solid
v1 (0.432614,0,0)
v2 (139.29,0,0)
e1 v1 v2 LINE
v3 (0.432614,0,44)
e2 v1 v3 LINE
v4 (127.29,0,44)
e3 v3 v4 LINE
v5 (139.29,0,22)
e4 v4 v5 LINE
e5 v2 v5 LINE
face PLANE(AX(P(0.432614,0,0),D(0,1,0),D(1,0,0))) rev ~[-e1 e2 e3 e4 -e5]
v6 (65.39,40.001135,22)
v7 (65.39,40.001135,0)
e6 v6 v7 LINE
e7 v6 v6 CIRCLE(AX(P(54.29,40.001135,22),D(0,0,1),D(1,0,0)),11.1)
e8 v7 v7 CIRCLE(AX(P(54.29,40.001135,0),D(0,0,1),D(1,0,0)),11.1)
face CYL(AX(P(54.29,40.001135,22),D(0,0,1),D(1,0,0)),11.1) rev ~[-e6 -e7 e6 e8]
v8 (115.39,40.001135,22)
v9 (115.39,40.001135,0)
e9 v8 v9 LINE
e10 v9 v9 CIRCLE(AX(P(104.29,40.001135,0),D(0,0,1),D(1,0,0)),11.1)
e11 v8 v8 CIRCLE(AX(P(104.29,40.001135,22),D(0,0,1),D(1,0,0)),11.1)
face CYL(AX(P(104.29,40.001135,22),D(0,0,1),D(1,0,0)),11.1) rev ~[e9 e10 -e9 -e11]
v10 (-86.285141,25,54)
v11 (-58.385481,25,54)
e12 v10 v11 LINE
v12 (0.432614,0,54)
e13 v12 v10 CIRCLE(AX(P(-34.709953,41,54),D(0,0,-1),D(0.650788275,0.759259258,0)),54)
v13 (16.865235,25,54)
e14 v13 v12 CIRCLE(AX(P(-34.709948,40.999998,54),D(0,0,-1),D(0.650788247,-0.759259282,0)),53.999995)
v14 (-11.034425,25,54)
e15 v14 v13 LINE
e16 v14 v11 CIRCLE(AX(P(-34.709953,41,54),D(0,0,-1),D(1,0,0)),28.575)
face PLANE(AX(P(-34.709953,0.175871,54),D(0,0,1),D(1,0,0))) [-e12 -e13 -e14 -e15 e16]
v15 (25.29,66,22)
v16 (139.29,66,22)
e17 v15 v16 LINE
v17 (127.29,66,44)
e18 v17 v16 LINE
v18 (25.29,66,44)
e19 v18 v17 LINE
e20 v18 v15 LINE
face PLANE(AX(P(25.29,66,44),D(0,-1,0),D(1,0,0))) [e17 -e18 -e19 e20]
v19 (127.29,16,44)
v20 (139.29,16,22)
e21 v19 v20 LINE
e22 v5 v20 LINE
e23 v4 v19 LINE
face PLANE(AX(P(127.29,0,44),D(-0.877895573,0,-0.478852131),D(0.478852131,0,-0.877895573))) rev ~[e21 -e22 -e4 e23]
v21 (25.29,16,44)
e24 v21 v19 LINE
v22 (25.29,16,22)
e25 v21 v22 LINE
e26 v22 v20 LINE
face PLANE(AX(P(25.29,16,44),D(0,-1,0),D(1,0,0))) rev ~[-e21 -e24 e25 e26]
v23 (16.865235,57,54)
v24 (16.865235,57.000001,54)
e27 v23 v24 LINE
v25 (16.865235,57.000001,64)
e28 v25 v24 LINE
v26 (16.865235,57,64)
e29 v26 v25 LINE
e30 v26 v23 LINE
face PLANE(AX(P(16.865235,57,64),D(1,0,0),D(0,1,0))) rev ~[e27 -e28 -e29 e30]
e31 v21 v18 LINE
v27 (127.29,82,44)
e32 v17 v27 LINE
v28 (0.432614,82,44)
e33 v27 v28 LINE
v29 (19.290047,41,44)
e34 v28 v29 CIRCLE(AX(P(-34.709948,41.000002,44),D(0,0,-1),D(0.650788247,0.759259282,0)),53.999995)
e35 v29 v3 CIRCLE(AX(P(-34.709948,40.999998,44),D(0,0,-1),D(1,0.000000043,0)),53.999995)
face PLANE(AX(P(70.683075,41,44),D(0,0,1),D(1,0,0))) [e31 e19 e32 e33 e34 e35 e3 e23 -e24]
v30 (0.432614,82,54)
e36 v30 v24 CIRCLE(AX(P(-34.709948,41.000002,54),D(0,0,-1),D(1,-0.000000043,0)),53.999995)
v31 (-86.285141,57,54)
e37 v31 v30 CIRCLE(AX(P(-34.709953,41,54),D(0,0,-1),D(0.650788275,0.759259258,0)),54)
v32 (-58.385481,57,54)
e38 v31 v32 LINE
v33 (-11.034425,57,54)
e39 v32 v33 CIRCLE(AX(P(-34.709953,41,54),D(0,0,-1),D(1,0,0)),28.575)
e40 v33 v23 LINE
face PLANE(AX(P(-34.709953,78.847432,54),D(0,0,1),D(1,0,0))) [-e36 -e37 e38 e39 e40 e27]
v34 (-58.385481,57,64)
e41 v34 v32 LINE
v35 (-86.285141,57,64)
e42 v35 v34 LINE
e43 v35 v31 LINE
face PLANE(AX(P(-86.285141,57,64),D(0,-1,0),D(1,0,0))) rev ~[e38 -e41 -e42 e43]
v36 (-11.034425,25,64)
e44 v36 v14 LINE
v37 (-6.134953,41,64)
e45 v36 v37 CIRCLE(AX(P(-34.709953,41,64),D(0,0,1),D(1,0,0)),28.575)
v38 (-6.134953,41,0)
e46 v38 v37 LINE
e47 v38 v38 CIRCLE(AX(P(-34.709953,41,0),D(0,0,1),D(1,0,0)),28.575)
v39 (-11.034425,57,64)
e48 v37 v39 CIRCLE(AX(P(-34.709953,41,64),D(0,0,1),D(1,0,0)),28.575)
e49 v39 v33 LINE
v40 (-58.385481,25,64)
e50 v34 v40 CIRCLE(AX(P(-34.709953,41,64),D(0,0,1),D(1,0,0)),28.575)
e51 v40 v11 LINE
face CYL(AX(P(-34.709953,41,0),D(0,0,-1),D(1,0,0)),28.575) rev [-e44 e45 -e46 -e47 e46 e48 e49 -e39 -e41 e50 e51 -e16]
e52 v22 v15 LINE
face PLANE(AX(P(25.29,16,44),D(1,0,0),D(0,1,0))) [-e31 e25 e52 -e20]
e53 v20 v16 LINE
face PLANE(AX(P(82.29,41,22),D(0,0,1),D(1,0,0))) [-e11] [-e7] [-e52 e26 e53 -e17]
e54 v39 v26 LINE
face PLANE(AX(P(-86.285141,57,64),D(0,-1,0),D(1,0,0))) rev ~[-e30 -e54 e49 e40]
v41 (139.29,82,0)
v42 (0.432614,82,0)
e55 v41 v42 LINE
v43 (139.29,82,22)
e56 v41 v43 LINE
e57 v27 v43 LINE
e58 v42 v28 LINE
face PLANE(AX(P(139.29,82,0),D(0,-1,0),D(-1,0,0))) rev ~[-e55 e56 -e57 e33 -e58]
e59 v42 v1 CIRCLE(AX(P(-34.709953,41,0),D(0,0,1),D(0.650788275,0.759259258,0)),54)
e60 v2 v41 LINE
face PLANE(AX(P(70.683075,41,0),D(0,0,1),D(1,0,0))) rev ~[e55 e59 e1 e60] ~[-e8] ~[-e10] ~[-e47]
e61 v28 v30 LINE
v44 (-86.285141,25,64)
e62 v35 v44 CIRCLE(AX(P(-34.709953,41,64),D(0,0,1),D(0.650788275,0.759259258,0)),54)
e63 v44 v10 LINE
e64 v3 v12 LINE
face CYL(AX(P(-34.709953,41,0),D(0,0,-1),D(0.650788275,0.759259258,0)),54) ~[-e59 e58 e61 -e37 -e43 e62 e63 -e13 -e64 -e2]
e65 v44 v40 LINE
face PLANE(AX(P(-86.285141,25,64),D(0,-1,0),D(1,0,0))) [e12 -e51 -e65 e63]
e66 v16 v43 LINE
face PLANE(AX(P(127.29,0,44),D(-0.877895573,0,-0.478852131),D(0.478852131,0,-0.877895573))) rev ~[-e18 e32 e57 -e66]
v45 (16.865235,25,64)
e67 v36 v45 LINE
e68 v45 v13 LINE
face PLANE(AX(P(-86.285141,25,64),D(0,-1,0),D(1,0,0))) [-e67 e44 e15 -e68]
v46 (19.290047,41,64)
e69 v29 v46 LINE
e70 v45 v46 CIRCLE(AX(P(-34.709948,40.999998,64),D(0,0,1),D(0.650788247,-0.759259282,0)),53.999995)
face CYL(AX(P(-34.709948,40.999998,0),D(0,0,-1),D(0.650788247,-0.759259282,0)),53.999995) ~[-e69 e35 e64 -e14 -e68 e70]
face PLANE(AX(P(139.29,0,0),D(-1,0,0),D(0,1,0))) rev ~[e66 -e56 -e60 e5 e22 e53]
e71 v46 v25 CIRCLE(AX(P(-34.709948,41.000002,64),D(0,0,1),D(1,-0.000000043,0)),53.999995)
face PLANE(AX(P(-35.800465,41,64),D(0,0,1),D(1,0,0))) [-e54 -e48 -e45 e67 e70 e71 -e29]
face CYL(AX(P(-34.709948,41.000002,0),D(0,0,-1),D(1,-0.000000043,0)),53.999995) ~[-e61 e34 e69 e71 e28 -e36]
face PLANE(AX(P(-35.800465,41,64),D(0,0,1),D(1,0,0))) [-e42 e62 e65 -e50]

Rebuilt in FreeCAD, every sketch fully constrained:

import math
import FreeCAD as App
import Part
import Sketcher
Q = App.Units.Quantity

doc = App.newDocument("Part")
body = doc.addObject("PartDesign::Body", "Body")

# Sketch on XY plane
sketch1 = body.newObject("Sketcher::SketchObject", "Sketch")
sketch1.AttachmentSupport = (doc.getObject("XY_Plane"), [""])
sketch1.MapMode = "FlatFace"
sketch1.addGeometry(Part.ArcOfCircle(Part.Circle(App.Vector(-34.709953, 41, 0), App.Vector(0, 0, 1), 54), math.radians(49.398939), math.radians(310.601061)), False)
sketch1.addGeometry(Part.ArcOfCircle(Part.Circle(App.Vector(-34.709948, 40.999998, 0), App.Vector(0, 0, 1), 53.999995), math.radians(-49.398941), math.radians(0.000002)), False)
sketch1.addGeometry(Part.ArcOfCircle(Part.Circle(App.Vector(-34.709948, 41.000002, 0), App.Vector(0, 0, 1), 53.999995), math.radians(-0.000002), math.radians(49.398941)), False)
sketch1.addGeometry(Part.Circle(App.Vector(-34.709953, 41, 0), App.Vector(0, 0, 1), 28.575), False)
sketch1.addConstraint(Sketcher.Constraint("Tangent", 0, 2, 1, 1))
sketch1.addConstraint(Sketcher.Constraint("Tangent", 1, 2, 2, 1))
sketch1.addConstraint(Sketcher.Constraint("Tangent", 2, 2, 0, 1))
sketch1.addConstraint(Sketcher.Constraint("Coincident", 3, 3, 0, 3))
sketch1.addConstraint(Sketcher.Constraint("PointOnObject", 0, 2, -1))
sketch1.addConstraint(Sketcher.Constraint("Horizontal", 3, 3, 1, 2))
sketch1.addConstraint(Sketcher.Constraint("Vertical", 0, 2, 2, 2))
sketch1.addConstraint(Sketcher.Constraint("Radius", 0, Q("54 mm")))
sketch1.addConstraint(Sketcher.Constraint("Diameter", 3, Q("57.15 mm")))
sketch1.addConstraint(Sketcher.Constraint("DistanceY", -1, 1, 0, 3, Q("41 mm")))
sketch1.addConstraint(Sketcher.Constraint("DistanceX", 1, 3, -1, 1, Q("34.709948 mm")))
pad1 = body.newObject("PartDesign::Pad", "Pad")
pad1.Profile = sketch1
pad1.Length = 64

# Sketch on XY plane
sketch2 = body.newObject("Sketcher::SketchObject", "Sketch001")
sketch2.AttachmentSupport = (doc.getObject("XY_Plane"), [""])
sketch2.MapMode = "FlatFace"
sketch2.addGeometry(Part.ArcOfCircle(Part.Circle(App.Vector(-34.709948, 40.999998, 0), App.Vector(0, 0, 1), 53.999995), math.radians(-49.398941), math.radians(0.000002)), False)
sketch2.addGeometry(Part.LineSegment(App.Vector(0.432614, 0, 0), App.Vector(139.29, 0, 0)), False)
sketch2.addGeometry(Part.LineSegment(App.Vector(139.29, 0, 0), App.Vector(139.29, 82, 0)), False)
sketch2.addGeometry(Part.LineSegment(App.Vector(139.29, 82, 0), App.Vector(0.432614, 82, 0)), False)
sketch2.addGeometry(Part.ArcOfCircle(Part.Circle(App.Vector(-34.709948, 41.000002, 0), App.Vector(0, 0, 1), 53.999995), math.radians(-0.000002), math.radians(49.398941)), False)
sketch2.addConstraint(Sketcher.Constraint("Coincident", 0, 1, 1, 1))
sketch2.addConstraint(Sketcher.Constraint("Coincident", 1, 2, 2, 1))
sketch2.addConstraint(Sketcher.Constraint("Coincident", 2, 2, 3, 1))
sketch2.addConstraint(Sketcher.Constraint("Coincident", 3, 2, 4, 2))
sketch2.addConstraint(Sketcher.Constraint("Tangent", 4, 1, 0, 2))
sketch2.addConstraint(Sketcher.Constraint("Horizontal", 1))
sketch2.addConstraint(Sketcher.Constraint("Vertical", 2))
sketch2.addConstraint(Sketcher.Constraint("Horizontal", 3))
sketch2.addConstraint(Sketcher.Constraint("Equal", 0, 4))
sketch2.addConstraint(Sketcher.Constraint("PointOnObject", 0, 1, -1))
sketch2.addConstraint(Sketcher.Constraint("Vertical", 0, 1, 3, 2))
sketch2.addConstraint(Sketcher.Constraint("DistanceY", 2, 1, 2, 2, Q("82 mm")))
sketch2.addConstraint(Sketcher.Constraint("DistanceY", -1, 1, 4, 1, Q("41 mm")))
sketch2.addConstraint(Sketcher.Constraint("DistanceX", -1, 1, 1, 2, Q("139.29 mm")))
sketch2.addConstraint(Sketcher.Constraint("Radius", 0, Q("53.999995 mm")))
sketch2.addConstraint(Sketcher.Constraint("DistanceX", 1, 1, 1, 2, Q("138.857386 mm")))
pad2 = body.newObject("PartDesign::Pad", "Pad001")
pad2.Profile = sketch2
pad2.Length = 44

# Sketch on XY plane
sketch3 = body.newObject("Sketcher::SketchObject", "Sketch002")
sketch3.AttachmentSupport = (doc.getObject("XY_Plane"), [""])
sketch3.MapMode = "FlatFace"
sketch3.AttachmentOffset = App.Placement(App.Vector(0, 0, 64), App.Rotation())
sketch3.addGeometry(Part.LineSegment(App.Vector(-86.285141, 25, 0), App.Vector(-86.285141, -24.648258, 0)), False)
sketch3.addGeometry(Part.LineSegment(App.Vector(-86.285141, -24.648258, 0), App.Vector(16.865235, -24.648258, 0)), False)
sketch3.addGeometry(Part.LineSegment(App.Vector(16.865235, -24.648258, 0), App.Vector(16.865235, 25, 0)), False)
sketch3.addGeometry(Part.LineSegment(App.Vector(16.865235, 25, 0), App.Vector(-86.285141, 25, 0)), False)
sketch3.addGeometry(Part.LineSegment(App.Vector(-86.285141, 100.694864, 0), App.Vector(-86.285141, 57, 0)), False)
sketch3.addGeometry(Part.LineSegment(App.Vector(-86.285141, 57, 0), App.Vector(16.865235, 57, 0)), False)
sketch3.addGeometry(Part.LineSegment(App.Vector(16.865235, 57, 0), App.Vector(16.865235, 100.694864, 0)), False)
sketch3.addGeometry(Part.LineSegment(App.Vector(16.865235, 100.694864, 0), App.Vector(-86.285141, 100.694864, 0)), False)
sketch3.addConstraint(Sketcher.Constraint("Coincident", 0, 2, 1, 1))
sketch3.addConstraint(Sketcher.Constraint("Coincident", 1, 2, 2, 1))
sketch3.addConstraint(Sketcher.Constraint("Coincident", 2, 2, 3, 1))
sketch3.addConstraint(Sketcher.Constraint("Coincident", 3, 2, 0, 1))
sketch3.addConstraint(Sketcher.Constraint("Coincident", 4, 2, 5, 1))
sketch3.addConstraint(Sketcher.Constraint("Coincident", 5, 2, 6, 1))
sketch3.addConstraint(Sketcher.Constraint("Coincident", 6, 2, 7, 1))
sketch3.addConstraint(Sketcher.Constraint("Coincident", 7, 2, 4, 1))
sketch3.addConstraint(Sketcher.Constraint("Vertical", 0))
sketch3.addConstraint(Sketcher.Constraint("Horizontal", 1))
sketch3.addConstraint(Sketcher.Constraint("Vertical", 2))
sketch3.addConstraint(Sketcher.Constraint("Horizontal", 3))
sketch3.addConstraint(Sketcher.Constraint("Vertical", 4))
sketch3.addConstraint(Sketcher.Constraint("Horizontal", 5))
sketch3.addConstraint(Sketcher.Constraint("Vertical", 6))
sketch3.addConstraint(Sketcher.Constraint("Horizontal", 7))
sketch3.addConstraint(Sketcher.Constraint("Vertical", 3, 2, 4, 2))
sketch3.addConstraint(Sketcher.Constraint("Vertical", 2, 2, 5, 2))
sketch3.addConstraint(Sketcher.Constraint("DistanceY", -1, 1, 2, 2, Q("25 mm")))
sketch3.addConstraint(Sketcher.Constraint("DistanceY", -1, 1, 4, 2, Q("57 mm")))
sketch3.addConstraint(Sketcher.Constraint("DistanceX", 1, 1, 1, 2, Q("103.150376 mm")))
sketch3.addConstraint(Sketcher.Constraint("DistanceY", 0, 2, 0, 1, Q("49.648258 mm")))
sketch3.addConstraint(Sketcher.Constraint("DistanceY", 4, 2, 4, 1, Q("43.694865 mm")))
sketch3.addConstraint(Sketcher.Constraint("DistanceX", 0, 2, -1, 1, Q("86.285141 mm")))
pocket1 = body.newObject("PartDesign::Pocket", "Pocket")
pocket1.Profile = sketch3
pocket1.Length = 10

# Sketch on XY plane
sketch4 = body.newObject("Sketcher::SketchObject", "Sketch003")
sketch4.AttachmentSupport = (doc.getObject("XY_Plane"), [""])
sketch4.MapMode = "FlatFace"
sketch4.AttachmentOffset = App.Placement(App.Vector(0, 0, 44), App.Rotation())
sketch4.addGeometry(Part.LineSegment(App.Vector(25.29, 66, 0), App.Vector(25.29, 16, 0)), False)
sketch4.addGeometry(Part.LineSegment(App.Vector(25.29, 16, 0), App.Vector(139.29, 16, 0)), False)
sketch4.addGeometry(Part.LineSegment(App.Vector(139.29, 16, 0), App.Vector(139.29, 66, 0)), False)
sketch4.addGeometry(Part.LineSegment(App.Vector(139.29, 66, 0), App.Vector(25.29, 66, 0)), False)
sketch4.addConstraint(Sketcher.Constraint("Coincident", 0, 2, 1, 1))
sketch4.addConstraint(Sketcher.Constraint("Coincident", 1, 2, 2, 1))
sketch4.addConstraint(Sketcher.Constraint("Coincident", 2, 2, 3, 1))
sketch4.addConstraint(Sketcher.Constraint("Coincident", 3, 2, 0, 1))
sketch4.addConstraint(Sketcher.Constraint("Vertical", 0))
sketch4.addConstraint(Sketcher.Constraint("Horizontal", 1))
sketch4.addConstraint(Sketcher.Constraint("Vertical", 2))
sketch4.addConstraint(Sketcher.Constraint("Horizontal", 3))
sketch4.addConstraint(Sketcher.Constraint("DistanceX", 1, 1, 1, 2, Q("114 mm")))
sketch4.addConstraint(Sketcher.Constraint("DistanceY", 0, 2, 0, 1, Q("50 mm")))
sketch4.addConstraint(Sketcher.Constraint("DistanceY", -1, 1, 0, 2, Q("16 mm")))
sketch4.addConstraint(Sketcher.Constraint("DistanceX", -1, 1, 0, 2, Q("25.29 mm")))
pocket2 = body.newObject("PartDesign::Pocket", "Pocket001")
pocket2.Profile = sketch4
pocket2.Length = 22

# Sketch on XZ plane
sketch5 = body.newObject("Sketcher::SketchObject", "Sketch004")
sketch5.AttachmentSupport = (doc.getObject("XZ_Plane"), [""])
sketch5.MapMode = "FlatFace"
sketch5.addGeometry(Part.LineSegment(App.Vector(139.29, 22, 0), App.Vector(139.29, 44, 0)), False)
sketch5.addGeometry(Part.LineSegment(App.Vector(139.29, 44, 0), App.Vector(127.29, 44, 0)), False)
sketch5.addGeometry(Part.LineSegment(App.Vector(127.29, 44, 0), App.Vector(139.29, 22, 0)), False)
sketch5.addConstraint(Sketcher.Constraint("Coincident", 0, 2, 1, 1))
sketch5.addConstraint(Sketcher.Constraint("Coincident", 1, 2, 2, 1))
sketch5.addConstraint(Sketcher.Constraint("Coincident", 2, 2, 0, 1))
sketch5.addConstraint(Sketcher.Constraint("Vertical", 0))
sketch5.addConstraint(Sketcher.Constraint("Horizontal", 1))
sketch5.addConstraint(Sketcher.Constraint("DistanceX", 1, 2, 1, 1, Q("12 mm")))
sketch5.addConstraint(Sketcher.Constraint("DistanceY", 0, 1, 0, 2, Q("22 mm")))
sketch5.addConstraint(Sketcher.Constraint("DistanceY", -1, 1, 0, 2, Q("44 mm")))
sketch5.addConstraint(Sketcher.Constraint("DistanceX", -1, 1, 0, 2, Q("139.29 mm")))
pocket3 = body.newObject("PartDesign::Pocket", "Pocket002")
pocket3.Profile = sketch5
pocket3.Type = "ThroughAll"

# Sketch on XY plane
sketch6 = body.newObject("Sketcher::SketchObject", "Sketch005")
sketch6.AttachmentSupport = (doc.getObject("XY_Plane"), [""])
sketch6.MapMode = "FlatFace"
sketch6.AttachmentOffset = App.Placement(App.Vector(0, 0, 22), App.Rotation())
sketch6.addGeometry(Part.Circle(App.Vector(54.29, 40.001135, 0), App.Vector(0, 0, 1), 11.1), False)
sketch6.addGeometry(Part.Circle(App.Vector(104.29, 40.001135, 0), App.Vector(0, 0, 1), 11.1), False)
sketch6.addConstraint(Sketcher.Constraint("Equal", 0, 1))
sketch6.addConstraint(Sketcher.Constraint("Horizontal", 0, 3, 1, 3))
sketch6.addConstraint(Sketcher.Constraint("Diameter", 0, Q("22.2 mm")))
sketch6.addConstraint(Sketcher.Constraint("DistanceX", 0, 3, 1, 3, Q("50 mm")))
sketch6.addConstraint(Sketcher.Constraint("DistanceX", -1, 1, 0, 3, Q("54.29 mm")))
sketch6.addConstraint(Sketcher.Constraint("DistanceY", -1, 1, 0, 3, Q("40.001135 mm")))
pocket4 = body.newObject("PartDesign::Pocket", "Pocket003")
pocket4.Profile = sketch6
pocket4.Type = "ThroughAll"

doc.recompute()
